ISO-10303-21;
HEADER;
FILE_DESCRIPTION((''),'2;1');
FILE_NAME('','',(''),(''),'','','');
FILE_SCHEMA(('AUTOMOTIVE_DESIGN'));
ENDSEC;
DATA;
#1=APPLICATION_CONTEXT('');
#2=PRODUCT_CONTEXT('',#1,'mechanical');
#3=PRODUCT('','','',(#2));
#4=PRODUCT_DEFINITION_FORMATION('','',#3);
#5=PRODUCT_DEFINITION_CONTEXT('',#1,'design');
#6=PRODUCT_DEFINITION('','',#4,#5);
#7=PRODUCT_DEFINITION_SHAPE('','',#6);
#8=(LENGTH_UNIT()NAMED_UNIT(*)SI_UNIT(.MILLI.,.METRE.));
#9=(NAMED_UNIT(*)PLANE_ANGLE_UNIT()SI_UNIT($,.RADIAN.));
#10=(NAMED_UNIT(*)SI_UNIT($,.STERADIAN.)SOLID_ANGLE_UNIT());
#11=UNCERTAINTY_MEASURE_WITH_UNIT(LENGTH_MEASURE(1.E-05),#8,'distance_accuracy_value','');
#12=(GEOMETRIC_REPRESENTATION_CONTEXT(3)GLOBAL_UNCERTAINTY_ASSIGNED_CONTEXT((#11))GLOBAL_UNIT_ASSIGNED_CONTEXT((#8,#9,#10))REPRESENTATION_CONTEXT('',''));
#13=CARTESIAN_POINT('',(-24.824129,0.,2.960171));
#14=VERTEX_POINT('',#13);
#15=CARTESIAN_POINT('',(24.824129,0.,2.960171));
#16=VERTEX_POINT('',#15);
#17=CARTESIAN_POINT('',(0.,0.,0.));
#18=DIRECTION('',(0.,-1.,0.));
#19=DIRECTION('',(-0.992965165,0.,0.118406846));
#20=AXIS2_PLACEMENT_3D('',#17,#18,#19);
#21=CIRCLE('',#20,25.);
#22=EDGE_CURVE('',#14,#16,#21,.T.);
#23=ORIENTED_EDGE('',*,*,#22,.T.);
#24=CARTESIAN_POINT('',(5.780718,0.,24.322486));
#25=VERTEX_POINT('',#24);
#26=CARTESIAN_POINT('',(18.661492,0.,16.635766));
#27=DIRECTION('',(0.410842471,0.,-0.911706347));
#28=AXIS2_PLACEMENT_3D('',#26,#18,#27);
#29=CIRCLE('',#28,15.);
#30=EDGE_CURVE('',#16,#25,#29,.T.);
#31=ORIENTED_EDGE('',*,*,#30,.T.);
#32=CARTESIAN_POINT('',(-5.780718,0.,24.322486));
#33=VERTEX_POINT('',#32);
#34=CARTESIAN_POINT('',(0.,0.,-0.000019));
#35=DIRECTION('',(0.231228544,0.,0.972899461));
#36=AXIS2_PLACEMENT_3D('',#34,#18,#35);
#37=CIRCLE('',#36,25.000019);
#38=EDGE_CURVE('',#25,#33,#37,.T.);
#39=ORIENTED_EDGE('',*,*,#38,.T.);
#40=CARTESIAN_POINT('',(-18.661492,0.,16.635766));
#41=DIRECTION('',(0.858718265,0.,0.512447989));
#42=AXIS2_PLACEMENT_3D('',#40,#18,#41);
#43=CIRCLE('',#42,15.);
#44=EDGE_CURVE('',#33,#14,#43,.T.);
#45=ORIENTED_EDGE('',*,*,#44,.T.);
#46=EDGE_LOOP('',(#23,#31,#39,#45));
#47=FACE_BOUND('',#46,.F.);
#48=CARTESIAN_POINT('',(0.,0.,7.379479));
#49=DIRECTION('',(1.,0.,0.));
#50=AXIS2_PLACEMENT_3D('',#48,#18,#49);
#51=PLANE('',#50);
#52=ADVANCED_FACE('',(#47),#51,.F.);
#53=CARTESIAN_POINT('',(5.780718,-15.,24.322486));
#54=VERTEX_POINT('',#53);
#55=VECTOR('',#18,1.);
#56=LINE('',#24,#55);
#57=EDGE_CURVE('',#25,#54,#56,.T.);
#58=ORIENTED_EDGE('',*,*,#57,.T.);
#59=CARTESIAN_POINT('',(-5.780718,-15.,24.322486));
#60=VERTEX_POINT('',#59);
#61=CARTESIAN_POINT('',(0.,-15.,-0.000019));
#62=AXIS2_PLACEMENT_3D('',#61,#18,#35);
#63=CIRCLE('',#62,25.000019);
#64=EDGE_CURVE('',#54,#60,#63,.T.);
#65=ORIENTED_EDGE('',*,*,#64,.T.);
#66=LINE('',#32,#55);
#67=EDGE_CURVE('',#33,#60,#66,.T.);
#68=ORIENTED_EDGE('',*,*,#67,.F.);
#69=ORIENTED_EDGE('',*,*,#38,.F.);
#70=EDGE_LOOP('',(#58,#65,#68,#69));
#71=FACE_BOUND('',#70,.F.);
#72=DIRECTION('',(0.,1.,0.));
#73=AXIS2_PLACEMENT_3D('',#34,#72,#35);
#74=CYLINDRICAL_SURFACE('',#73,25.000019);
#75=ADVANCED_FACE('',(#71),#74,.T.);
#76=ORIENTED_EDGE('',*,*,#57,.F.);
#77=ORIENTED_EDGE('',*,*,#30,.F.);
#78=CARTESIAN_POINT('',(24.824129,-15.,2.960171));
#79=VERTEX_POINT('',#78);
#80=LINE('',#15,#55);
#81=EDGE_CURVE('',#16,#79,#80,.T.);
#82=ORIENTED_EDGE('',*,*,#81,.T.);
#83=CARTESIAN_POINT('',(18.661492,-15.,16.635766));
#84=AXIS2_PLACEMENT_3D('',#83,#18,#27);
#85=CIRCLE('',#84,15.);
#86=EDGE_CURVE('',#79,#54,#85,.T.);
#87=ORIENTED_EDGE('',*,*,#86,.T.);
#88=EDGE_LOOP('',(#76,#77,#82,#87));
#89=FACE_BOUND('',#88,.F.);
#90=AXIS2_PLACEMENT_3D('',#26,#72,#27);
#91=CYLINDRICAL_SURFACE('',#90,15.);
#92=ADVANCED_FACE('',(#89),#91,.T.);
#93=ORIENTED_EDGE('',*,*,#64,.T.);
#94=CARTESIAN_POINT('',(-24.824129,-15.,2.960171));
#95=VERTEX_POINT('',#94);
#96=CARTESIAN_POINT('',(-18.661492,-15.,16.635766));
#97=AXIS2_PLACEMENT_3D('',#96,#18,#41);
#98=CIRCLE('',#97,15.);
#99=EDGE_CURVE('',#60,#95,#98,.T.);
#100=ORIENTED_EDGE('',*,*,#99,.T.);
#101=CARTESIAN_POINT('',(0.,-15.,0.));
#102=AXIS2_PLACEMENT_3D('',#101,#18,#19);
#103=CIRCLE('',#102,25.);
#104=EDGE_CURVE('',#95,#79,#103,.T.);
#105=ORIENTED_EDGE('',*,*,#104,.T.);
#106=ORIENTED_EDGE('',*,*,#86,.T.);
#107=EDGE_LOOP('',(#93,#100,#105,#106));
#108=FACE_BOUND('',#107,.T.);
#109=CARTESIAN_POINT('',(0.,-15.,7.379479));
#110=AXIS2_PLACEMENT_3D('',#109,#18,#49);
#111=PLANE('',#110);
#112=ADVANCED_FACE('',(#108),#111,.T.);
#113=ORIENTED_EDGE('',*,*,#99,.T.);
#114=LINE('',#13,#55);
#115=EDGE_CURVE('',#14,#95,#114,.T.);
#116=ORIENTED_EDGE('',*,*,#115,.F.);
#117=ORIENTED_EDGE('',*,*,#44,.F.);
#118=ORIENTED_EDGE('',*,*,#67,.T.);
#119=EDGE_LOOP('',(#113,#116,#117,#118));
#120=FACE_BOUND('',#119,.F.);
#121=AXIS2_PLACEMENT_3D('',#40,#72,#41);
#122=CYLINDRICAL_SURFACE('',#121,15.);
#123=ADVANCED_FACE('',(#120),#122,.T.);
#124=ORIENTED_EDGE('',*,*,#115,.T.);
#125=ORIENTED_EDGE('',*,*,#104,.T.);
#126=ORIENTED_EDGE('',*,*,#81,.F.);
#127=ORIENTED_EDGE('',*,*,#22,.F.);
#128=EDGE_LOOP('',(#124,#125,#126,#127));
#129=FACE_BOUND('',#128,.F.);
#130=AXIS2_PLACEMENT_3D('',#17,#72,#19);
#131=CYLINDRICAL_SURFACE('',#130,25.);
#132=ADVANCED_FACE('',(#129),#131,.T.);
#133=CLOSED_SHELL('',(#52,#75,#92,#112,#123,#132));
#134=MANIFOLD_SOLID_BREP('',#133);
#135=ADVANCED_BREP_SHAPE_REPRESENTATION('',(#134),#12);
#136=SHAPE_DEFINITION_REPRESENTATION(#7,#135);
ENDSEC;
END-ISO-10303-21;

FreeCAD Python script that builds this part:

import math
import FreeCAD as App
import Part
import Sketcher

doc = App.newDocument("Part")
body = doc.addObject("PartDesign::Body", "Body")

# Sketch on XZ plane
sketch1 = body.newObject("Sketcher::SketchObject", "Sketch")
sketch1.AttachmentSupport = (doc.getObject("XZ_Plane"), [""])
sketch1.MapMode = "FlatFace"
sketch1.addGeometry([
    Part.ArcOfCircle(Part.Circle(App.Vector(-19, 17, 0), App.Vector(0, 0, 1), 15), math.radians(31), math.radians(246)),
    Part.ArcOfCircle(Part.Circle(App.Vector(0, 0, 0), App.Vector(0, 0, 1), 25), math.radians(173), math.radians(367)),
    Part.ArcOfCircle(Part.Circle(App.Vector(19, 17, 0), App.Vector(0, 0, 1), 15), math.radians(-66), math.radians(149)),
    Part.ArcOfCircle(Part.Circle(App.Vector(0, 0, 0), App.Vector(0, 0, 1), 25), math.radians(77), math.radians(103)),
], False)
sketch1.addConstraint([
    Sketcher.Constraint("Coincident", 0, 2, 1, 1),
    Sketcher.Constraint("Coincident", 1, 2, 2, 1),
    Sketcher.Constraint("Coincident", 2, 2, 3, 1),
    Sketcher.Constraint("Coincident", 3, 2, 0, 1),
    Sketcher.Constraint("Coincident", 1, 3, -1, 1),
    Sketcher.Constraint("Equal", 0, 2),
    Sketcher.Constraint("Symmetric", 0, 3, 2, 3, -2),
    Sketcher.Constraint("PointOnObject", 3, 3, -2),
    Sketcher.Constraint("Radius", 0, 15.0),
    Sketcher.Constraint("Radius", 1, 25.0),
    Sketcher.Constraint("Radius", 3, 25.000019),
    Sketcher.Constraint("DistanceX", 0, 3, -1, 1, 18.661492),
    Sketcher.Constraint("DistanceX", 0, 2, -1, 1, 24.824129),
    Sketcher.Constraint("DistanceX", -1, 1, 2, 2, 5.780718),
])
pad1 = body.newObject("PartDesign::Pad", "Pad")
pad1.Profile = sketch1
pad1.Length = 15

doc.recompute()
